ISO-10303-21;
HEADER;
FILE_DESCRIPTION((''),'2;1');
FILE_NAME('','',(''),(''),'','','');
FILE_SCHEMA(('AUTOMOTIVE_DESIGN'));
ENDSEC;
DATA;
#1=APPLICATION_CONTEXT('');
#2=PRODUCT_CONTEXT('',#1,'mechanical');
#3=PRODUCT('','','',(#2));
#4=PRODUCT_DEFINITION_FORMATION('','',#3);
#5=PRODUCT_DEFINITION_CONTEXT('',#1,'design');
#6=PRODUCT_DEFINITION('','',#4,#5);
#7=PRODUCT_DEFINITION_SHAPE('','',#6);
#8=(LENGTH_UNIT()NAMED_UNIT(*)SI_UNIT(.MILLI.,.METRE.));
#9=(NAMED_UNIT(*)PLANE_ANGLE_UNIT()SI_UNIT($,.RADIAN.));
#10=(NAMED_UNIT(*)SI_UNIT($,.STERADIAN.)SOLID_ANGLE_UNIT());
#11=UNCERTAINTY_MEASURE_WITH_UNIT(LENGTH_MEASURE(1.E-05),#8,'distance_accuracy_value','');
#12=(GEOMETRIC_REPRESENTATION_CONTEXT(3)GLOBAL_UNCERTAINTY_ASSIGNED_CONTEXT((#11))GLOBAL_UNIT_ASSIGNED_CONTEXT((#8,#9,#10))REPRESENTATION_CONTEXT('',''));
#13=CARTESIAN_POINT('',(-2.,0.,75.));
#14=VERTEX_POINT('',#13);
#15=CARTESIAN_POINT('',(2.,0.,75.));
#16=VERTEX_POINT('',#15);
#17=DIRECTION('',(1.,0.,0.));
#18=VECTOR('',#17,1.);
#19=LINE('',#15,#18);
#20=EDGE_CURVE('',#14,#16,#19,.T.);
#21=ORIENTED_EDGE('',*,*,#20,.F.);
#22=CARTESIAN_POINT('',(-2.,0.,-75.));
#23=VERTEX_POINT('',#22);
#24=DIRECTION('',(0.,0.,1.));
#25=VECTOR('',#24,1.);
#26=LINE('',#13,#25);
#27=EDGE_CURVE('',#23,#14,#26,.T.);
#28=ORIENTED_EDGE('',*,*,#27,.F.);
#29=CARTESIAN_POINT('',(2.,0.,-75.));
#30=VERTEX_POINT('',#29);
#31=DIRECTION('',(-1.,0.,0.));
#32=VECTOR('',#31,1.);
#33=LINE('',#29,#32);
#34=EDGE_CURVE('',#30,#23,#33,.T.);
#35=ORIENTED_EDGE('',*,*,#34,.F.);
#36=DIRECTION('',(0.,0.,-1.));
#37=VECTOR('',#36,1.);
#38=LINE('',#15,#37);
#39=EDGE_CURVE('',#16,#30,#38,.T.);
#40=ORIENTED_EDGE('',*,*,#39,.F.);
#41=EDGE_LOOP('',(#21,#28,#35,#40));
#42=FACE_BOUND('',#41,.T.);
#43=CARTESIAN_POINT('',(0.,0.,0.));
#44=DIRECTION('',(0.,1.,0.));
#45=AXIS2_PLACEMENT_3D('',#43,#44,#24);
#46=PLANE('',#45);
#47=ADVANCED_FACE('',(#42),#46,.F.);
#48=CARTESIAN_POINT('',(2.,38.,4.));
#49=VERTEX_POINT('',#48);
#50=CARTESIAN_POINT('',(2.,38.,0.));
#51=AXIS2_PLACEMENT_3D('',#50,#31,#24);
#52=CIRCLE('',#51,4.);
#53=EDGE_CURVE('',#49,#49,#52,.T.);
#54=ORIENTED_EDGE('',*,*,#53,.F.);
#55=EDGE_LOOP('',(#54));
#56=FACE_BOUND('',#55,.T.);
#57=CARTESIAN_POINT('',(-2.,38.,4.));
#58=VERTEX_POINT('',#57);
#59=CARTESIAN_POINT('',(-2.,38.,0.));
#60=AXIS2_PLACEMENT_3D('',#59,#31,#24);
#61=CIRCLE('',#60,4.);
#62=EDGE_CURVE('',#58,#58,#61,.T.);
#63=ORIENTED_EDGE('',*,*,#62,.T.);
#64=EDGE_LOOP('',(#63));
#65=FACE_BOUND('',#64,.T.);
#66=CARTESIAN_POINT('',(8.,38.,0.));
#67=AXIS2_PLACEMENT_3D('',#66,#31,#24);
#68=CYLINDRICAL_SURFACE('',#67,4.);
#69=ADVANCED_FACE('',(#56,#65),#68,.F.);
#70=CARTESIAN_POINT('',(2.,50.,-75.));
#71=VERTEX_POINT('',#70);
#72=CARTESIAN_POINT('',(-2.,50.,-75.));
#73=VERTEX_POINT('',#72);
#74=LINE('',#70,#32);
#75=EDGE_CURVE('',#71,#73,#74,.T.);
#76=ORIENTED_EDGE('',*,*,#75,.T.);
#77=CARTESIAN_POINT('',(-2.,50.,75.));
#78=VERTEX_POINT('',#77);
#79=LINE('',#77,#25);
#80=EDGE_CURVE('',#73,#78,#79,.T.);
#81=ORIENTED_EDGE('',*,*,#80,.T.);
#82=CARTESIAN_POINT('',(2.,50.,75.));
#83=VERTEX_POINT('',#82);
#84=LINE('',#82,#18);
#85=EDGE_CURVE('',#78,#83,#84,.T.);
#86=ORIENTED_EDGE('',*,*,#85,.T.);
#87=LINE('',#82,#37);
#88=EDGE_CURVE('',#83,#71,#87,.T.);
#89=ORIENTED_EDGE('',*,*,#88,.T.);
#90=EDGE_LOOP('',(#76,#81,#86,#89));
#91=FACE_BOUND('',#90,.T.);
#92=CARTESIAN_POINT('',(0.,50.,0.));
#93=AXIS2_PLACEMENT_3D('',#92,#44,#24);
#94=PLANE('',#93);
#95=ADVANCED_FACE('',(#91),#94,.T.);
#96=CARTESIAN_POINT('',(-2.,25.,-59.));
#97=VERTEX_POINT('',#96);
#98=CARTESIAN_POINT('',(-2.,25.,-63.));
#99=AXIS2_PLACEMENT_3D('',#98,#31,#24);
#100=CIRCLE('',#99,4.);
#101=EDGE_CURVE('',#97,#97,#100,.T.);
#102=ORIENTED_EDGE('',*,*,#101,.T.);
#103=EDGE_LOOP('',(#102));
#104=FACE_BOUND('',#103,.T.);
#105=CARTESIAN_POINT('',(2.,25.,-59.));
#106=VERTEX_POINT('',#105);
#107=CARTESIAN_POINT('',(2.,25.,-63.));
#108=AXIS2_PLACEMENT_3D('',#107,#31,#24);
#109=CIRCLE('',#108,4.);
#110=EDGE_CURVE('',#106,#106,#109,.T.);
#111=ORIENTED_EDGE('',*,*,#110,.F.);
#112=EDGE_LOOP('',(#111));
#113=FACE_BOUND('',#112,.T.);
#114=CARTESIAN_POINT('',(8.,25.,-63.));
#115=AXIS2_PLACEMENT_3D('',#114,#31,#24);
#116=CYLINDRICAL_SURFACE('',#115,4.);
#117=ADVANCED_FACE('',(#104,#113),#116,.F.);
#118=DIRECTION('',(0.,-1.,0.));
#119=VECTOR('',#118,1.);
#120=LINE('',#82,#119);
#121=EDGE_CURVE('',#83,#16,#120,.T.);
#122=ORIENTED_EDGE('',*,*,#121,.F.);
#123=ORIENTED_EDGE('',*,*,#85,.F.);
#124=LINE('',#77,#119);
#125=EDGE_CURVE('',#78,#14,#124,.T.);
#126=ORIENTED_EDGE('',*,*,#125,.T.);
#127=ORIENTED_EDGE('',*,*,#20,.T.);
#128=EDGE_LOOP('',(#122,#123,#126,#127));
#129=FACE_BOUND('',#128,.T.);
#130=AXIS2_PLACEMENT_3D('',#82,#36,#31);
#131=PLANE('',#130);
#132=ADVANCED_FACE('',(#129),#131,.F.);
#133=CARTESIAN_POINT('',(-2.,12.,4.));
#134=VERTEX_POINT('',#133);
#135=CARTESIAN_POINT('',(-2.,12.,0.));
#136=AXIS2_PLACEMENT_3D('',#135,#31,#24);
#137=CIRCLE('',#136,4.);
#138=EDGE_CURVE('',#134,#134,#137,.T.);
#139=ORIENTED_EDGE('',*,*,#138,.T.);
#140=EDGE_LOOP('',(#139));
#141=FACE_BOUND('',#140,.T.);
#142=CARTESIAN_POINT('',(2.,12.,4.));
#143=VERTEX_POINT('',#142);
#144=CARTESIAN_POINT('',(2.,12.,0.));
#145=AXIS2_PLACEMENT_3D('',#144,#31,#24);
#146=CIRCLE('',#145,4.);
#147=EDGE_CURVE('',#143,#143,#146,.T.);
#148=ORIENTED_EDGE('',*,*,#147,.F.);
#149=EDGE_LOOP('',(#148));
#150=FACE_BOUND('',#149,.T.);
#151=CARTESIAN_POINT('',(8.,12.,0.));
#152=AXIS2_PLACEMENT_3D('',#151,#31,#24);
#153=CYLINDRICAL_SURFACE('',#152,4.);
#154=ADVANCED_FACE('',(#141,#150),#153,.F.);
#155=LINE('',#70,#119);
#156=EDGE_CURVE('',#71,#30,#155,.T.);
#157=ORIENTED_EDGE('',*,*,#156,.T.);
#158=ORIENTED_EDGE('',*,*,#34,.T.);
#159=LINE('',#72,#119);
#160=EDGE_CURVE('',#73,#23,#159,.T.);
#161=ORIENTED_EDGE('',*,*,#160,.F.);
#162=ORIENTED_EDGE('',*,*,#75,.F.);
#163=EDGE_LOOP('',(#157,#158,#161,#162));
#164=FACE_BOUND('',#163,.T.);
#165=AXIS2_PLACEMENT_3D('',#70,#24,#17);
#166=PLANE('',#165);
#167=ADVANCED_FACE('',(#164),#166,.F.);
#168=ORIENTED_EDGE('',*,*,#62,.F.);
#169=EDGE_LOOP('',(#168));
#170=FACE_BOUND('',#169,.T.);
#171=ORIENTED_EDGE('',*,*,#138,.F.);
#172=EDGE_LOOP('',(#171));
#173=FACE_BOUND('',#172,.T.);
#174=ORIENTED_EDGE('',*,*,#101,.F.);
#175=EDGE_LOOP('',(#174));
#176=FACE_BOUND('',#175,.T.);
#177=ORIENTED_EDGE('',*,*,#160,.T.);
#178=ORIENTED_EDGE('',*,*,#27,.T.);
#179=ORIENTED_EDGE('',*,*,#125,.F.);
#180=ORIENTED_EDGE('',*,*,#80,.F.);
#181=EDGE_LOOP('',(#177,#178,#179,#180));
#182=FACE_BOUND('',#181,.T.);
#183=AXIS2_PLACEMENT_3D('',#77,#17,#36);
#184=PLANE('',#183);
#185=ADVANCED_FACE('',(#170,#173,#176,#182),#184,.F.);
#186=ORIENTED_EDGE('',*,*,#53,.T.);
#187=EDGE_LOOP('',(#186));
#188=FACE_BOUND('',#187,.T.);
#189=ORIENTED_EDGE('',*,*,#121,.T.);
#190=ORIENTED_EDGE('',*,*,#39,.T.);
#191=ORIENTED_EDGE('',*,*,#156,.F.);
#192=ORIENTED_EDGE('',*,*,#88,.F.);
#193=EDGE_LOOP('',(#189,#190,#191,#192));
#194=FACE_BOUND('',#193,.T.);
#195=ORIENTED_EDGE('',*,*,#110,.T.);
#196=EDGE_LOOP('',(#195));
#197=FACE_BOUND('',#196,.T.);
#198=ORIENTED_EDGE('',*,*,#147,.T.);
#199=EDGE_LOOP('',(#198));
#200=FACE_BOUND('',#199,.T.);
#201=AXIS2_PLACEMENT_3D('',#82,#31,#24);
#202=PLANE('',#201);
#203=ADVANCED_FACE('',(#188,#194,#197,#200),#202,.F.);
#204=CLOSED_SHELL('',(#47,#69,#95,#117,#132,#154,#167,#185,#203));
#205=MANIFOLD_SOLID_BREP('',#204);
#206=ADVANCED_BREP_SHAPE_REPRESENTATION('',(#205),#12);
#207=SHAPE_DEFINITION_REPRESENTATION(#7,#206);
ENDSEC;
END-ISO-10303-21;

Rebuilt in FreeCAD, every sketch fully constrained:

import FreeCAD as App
import Part
import Sketcher
from FreeCAD import Vector
Q = App.Units.Quantity

doc = App.newDocument("Part")
body = doc.addObject("PartDesign::Body", "Body")

# Sketch on XZ plane
sketch1 = doc.addObject("Sketcher::SketchObject", "Sketch")
body.addObject(sketch1)
sketch1.AttachmentSupport = (doc.XZ_Plane, [""])
sketch1.MapMode = "FlatFace"
sketch1.addGeometry([
    Part.LineSegment(Vector(-2, -75, 0), Vector(-2, 75, 0)),
    Part.LineSegment(Vector(-2, 75, 0), Vector(2, 75, 0)),
    Part.LineSegment(Vector(2, 75, 0), Vector(2, -75, 0)),
    Part.LineSegment(Vector(2, -75, 0), Vector(-2, -75, 0)),
], False)
sketch1.addConstraint([
    Sketcher.Constraint("Coincident", 0, 2, 1, 1),
    Sketcher.Constraint("Coincident", 1, 2, 2, 1),
    Sketcher.Constraint("Coincident", 2, 2, 3, 1),
    Sketcher.Constraint("Coincident", 3, 2, 0, 1),
    Sketcher.Constraint("Vertical", 0),
    Sketcher.Constraint("Horizontal", 1),
    Sketcher.Constraint("Vertical", 2),
    Sketcher.Constraint("Horizontal", 3),
    Sketcher.Constraint("Symmetric", 0, 2, 2, 2, -1, 1),
    Sketcher.Constraint("DistanceX", 1, 1, 1, 2, Q("4 mm")),
    Sketcher.Constraint("DistanceY", 0, 1, 0, 2, Q("150 mm")),
])
pad1 = doc.addObject("PartDesign::Pad", "Pad")
body.addObject(pad1)
pad1.Profile = sketch1
pad1.Length = 50
pad1.Reversed = True

# Sketch on YZ plane
sketch2 = doc.addObject("Sketcher::SketchObject", "Sketch001")
body.addObject(sketch2)
sketch2.AttachmentSupport = (doc.YZ_Plane, [""])
sketch2.MapMode = "FlatFace"
sketch2.AttachmentOffset = App.Placement(Vector(0, 0, -2), App.Rotation())
sketch2.addGeometry([
    Part.Circle(Vector(38, 0, 0), Vector(0, 0, 1), 4),
    Part.Circle(Vector(12, 0, 0), Vector(0, 0, 1), 4),
    Part.Circle(Vector(25, -63, 0), Vector(0, 0, 1), 4),
], False)
sketch2.addConstraint([
    Sketcher.Constraint("Equal", 0, 1),
    Sketcher.Constraint("Equal", 1, 2),
    Sketcher.Constraint("PointOnObject", 0, 3, -1),
    Sketcher.Constraint("PointOnObject", 1, 3, -1),
    Sketcher.Constraint("Diameter", 0, Q("8 mm")),
    Sketcher.Constraint("DistanceX", -1, 1, 0, 3, Q("38 mm")),
    Sketcher.Constraint("DistanceX", -1, 1, 1, 3, Q("12 mm")),
    Sketcher.Constraint("DistanceX", -1, 1, 2, 3, Q("25 mm")),
    Sketcher.Constraint("DistanceY", 2, 3, -1, 1, Q("63 mm")),
])
pocket1 = doc.addObject("PartDesign::Pocket", "Pocket")
body.addObject(pocket1)
pocket1.Profile = sketch2
pocket1.Length = 10
pocket1.Reversed = True

doc.recompute()
